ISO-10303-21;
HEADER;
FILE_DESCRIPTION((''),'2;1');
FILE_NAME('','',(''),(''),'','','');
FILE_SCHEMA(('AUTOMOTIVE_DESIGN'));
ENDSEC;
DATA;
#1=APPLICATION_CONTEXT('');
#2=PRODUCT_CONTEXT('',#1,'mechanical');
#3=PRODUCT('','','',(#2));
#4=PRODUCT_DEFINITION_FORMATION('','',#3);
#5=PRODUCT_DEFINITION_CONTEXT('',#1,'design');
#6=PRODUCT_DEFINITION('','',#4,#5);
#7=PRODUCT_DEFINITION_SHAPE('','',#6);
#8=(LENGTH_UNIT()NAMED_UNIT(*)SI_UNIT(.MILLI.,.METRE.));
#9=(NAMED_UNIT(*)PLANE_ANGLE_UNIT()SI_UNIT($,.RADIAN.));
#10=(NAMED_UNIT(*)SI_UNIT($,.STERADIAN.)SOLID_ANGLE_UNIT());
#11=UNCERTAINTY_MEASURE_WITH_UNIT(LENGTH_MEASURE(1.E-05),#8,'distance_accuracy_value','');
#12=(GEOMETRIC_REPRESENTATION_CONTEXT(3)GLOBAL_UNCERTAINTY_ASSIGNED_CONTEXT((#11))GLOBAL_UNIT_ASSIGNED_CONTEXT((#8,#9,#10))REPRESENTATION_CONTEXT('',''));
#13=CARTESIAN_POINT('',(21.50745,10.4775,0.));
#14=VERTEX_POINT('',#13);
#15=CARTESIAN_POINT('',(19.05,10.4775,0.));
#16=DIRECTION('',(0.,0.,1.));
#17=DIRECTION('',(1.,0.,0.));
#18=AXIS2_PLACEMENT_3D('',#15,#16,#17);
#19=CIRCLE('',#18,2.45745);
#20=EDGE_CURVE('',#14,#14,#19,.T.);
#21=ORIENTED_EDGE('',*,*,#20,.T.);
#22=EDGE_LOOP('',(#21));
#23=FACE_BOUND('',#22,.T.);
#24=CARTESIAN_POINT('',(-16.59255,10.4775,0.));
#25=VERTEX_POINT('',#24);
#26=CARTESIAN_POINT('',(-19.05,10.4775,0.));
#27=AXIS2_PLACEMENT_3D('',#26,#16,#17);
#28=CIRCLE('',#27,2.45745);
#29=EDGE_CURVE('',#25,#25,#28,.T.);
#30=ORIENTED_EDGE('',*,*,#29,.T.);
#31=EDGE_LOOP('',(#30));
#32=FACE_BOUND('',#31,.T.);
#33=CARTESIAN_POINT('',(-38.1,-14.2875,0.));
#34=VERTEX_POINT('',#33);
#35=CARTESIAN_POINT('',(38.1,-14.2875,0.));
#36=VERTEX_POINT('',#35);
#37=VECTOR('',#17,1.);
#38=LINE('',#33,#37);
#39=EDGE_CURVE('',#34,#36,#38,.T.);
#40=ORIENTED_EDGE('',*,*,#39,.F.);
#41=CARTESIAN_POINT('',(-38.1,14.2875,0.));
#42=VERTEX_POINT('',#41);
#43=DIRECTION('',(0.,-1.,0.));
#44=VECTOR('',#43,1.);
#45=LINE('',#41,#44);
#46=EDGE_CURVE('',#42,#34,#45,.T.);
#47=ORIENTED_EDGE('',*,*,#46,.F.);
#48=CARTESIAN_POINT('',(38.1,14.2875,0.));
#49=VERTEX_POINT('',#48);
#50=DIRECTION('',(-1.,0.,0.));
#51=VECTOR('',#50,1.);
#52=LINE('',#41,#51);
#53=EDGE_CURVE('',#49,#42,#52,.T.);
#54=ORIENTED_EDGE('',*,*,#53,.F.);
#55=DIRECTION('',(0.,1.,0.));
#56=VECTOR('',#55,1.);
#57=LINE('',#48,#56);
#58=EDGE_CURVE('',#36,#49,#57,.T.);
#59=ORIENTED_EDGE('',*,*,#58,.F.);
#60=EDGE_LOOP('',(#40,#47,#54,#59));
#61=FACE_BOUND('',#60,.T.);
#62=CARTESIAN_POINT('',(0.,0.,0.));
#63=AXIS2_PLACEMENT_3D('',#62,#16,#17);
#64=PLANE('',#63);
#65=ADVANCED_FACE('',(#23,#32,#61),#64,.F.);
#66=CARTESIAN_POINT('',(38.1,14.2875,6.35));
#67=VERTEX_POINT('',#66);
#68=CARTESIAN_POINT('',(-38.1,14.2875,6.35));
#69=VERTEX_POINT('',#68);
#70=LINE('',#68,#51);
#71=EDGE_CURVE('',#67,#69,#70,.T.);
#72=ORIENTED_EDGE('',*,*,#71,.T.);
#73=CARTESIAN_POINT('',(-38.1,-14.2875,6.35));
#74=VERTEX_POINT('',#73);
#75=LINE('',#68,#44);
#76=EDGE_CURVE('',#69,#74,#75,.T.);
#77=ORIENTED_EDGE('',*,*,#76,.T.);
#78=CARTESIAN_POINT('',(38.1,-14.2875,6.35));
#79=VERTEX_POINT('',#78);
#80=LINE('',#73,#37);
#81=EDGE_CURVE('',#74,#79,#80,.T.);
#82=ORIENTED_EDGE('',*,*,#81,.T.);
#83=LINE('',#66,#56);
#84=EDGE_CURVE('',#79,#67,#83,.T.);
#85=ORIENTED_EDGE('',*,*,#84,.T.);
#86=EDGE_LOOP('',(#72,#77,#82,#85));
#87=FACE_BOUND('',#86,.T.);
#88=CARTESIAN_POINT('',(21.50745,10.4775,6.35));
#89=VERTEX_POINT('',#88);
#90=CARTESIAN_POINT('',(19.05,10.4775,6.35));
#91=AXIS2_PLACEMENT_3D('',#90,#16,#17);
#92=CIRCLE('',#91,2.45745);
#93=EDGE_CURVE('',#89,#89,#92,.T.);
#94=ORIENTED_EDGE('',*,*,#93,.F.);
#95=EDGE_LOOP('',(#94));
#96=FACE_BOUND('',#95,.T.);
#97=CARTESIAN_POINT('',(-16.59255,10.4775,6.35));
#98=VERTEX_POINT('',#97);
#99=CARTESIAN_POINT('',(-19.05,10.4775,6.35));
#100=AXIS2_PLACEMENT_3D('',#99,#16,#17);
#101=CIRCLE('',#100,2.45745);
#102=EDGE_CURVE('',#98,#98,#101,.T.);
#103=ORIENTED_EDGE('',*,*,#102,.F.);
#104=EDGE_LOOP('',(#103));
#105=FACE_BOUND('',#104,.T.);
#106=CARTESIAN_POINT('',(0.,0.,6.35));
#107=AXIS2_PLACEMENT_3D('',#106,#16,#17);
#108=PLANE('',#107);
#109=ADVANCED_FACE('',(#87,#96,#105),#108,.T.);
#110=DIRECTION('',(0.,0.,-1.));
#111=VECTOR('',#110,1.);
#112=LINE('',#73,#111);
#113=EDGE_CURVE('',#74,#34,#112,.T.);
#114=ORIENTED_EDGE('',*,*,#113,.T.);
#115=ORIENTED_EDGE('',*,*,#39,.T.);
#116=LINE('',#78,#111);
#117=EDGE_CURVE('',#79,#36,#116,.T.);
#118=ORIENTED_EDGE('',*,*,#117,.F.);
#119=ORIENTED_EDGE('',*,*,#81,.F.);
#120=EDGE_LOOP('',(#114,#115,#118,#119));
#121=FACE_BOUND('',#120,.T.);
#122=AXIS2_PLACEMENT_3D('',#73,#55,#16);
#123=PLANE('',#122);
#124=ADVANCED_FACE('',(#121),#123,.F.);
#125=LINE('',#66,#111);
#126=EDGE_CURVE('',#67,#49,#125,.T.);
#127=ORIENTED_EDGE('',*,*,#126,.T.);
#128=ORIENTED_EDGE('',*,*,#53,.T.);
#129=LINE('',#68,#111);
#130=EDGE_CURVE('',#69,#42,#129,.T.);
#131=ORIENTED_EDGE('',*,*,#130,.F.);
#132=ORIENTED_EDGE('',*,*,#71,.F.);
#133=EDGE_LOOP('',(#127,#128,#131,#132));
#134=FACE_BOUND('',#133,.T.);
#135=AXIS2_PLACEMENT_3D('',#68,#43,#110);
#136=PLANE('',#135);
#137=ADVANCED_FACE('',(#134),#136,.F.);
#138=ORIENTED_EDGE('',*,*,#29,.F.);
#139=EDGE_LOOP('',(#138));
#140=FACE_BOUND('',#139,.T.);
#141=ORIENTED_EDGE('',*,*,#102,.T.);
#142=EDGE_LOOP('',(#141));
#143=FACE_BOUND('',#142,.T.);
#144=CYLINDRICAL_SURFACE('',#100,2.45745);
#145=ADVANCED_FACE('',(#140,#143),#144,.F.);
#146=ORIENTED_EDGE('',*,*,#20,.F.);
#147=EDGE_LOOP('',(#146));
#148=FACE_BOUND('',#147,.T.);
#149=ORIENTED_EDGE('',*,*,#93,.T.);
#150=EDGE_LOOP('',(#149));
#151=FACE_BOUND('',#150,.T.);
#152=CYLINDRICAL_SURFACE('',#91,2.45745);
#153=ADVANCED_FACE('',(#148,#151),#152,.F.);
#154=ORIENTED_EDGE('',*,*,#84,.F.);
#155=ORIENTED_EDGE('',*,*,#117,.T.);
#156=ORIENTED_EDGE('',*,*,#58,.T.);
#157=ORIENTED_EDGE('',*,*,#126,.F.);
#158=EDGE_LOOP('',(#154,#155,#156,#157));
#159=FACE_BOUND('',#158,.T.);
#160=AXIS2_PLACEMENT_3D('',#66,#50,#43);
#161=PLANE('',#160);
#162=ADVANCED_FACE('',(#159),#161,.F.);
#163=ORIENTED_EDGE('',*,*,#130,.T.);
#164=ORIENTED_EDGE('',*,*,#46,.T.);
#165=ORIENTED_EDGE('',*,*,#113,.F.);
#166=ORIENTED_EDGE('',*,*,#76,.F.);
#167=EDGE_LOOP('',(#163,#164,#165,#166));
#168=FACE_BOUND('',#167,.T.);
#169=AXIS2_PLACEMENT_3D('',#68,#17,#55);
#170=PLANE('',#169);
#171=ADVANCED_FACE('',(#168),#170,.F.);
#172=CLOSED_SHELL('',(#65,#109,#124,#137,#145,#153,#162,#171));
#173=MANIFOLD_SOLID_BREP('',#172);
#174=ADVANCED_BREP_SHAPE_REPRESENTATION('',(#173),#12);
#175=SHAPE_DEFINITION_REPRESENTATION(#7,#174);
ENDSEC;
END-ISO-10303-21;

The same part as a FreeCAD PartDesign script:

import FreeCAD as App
import Part
import Sketcher

V = App.Vector
Q = App.Units.Quantity


def add_polygon(sketch, points):
    """Adds a closed chain of lines whose ends are joined by coincident constraints."""
    first, n = sketch.GeometryCount, len(points)
    for a, b in zip(points, points[1:] + points[:1]):
        sketch.addGeometry(Part.LineSegment(App.Vector(*a, 0), App.Vector(*b, 0)), False)
    for i in range(n):
        sketch.addConstraint(Sketcher.Constraint("Coincident", first + i, 2, first + (i + 1) % n, 1))

doc = App.newDocument("Part")
body = doc.addObject("PartDesign::Body", "Body")

# Sketch on XY plane
sketch1 = doc.addObject("Sketcher::SketchObject", "Sketch")
body.addObject(sketch1)
sketch1.AttachmentSupport = (doc.XY_Plane, [""])
sketch1.MapMode = "FlatFace"
add_polygon(sketch1, [(-38, 14), (-38, -14), (38, -14), (38, 14)])  # lines 0-3
sketch1.addConstraint([
    Sketcher.Constraint("Vertical", 0),
    Sketcher.Constraint("Horizontal", 1),
    Sketcher.Constraint("Vertical", 2),
    Sketcher.Constraint("Horizontal", 3),
    Sketcher.Constraint("Symmetric", 0, 2, 2, 2, -1, 1),
    Sketcher.Constraint("DistanceX", 1, 1, 1, 2, Q("3 in")),
    Sketcher.Constraint("DistanceY", 0, 2, 0, 1, Q("1.125 in")),
])
pad1 = doc.addObject("PartDesign::Pad", "Pad")
body.addObject(pad1)
pad1.Profile = sketch1
pad1.Length = Q("0.25 in")

# Sketch on XY plane
sketch2 = doc.addObject("Sketcher::SketchObject", "Sketch001")
body.addObject(sketch2)
sketch2.AttachmentSupport = (doc.XY_Plane, [""])
sketch2.MapMode = "FlatFace"
sketch2.AttachmentOffset = App.Placement(V(0, 0, 0.25 * 25.4), App.Rotation())
sketch2.addGeometry([
    Part.Circle(V(-19.1, 10.5, 0), V(0, 0, 1), 2.5),
    Part.Circle(V(19.1, 10.5, 0), V(0, 0, 1), 2.5),
], False)
sketch2.addConstraint([
    Sketcher.Constraint("Equal", 0, 1),
    Sketcher.Constraint("Symmetric", 0, 3, 1, 3, -2),
    Sketcher.Constraint("Diameter", 0, Q("0.1935 in")),
    Sketcher.Constraint("DistanceX", 0, 3, 1, 3, Q("1.5 in")),
    Sketcher.Constraint("DistanceY", -1, 1, 0, 3, Q("0.4125 in")),
])
doc.recompute()
hole = doc.addObject("PartDesign::Hole", "Hole")
body.addObject(hole)
hole.Profile = sketch2
hole.ThreadType = "None"
hole.Diameter = Q("0.1935 in")
hole.DepthType = "Dimension"
hole.Depth = Q("0.25 in")
hole.DrillPoint = "Flat"

doc.recompute()
